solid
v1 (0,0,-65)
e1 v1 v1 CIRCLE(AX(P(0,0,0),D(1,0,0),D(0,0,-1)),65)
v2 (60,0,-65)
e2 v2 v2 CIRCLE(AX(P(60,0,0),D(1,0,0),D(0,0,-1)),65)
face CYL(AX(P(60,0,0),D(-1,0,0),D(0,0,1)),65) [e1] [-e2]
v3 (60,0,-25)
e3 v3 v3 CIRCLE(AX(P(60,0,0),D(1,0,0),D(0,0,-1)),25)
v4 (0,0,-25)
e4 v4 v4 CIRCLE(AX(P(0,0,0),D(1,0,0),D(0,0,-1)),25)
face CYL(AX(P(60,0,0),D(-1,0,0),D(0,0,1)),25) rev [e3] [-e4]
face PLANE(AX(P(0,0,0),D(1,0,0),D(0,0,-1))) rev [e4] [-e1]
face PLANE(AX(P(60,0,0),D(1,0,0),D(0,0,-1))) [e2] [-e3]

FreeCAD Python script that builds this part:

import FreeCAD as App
import Part
import Sketcher
from FreeCAD import Vector

doc = App.newDocument("Part")
body = doc.addObject("PartDesign::Body", "Body")

sketch1 = body.newObject("Sketcher::SketchObject", "Sketch")
sketch1.AttachmentSupport = (doc.getObject("YZ_Plane"), [""])
sketch1.MapMode = "FlatFace"
sketch1.addGeometry(Part.Circle(Vector(0, 0, 0), Vector(0, 0, 1), 65), False)
sketch1.addGeometry(Part.Circle(Vector(0, 0, 0), Vector(0, 0, 1), 25), False)
sketch1.addConstraint(Sketcher.Constraint("Coincident", 0, 3, -1, 1))
sketch1.addConstraint(Sketcher.Constraint("Coincident", 1, 3, -1, 1))
sketch1.addConstraint(Sketcher.Constraint("Diameter", 0, 130.0))
sketch1.addConstraint(Sketcher.Constraint("Diameter", 1, 50.0))
pad1 = body.newObject("PartDesign::Pad", "Pad")
pad1.Profile = sketch1
pad1.Length = 60

doc.recompute()
